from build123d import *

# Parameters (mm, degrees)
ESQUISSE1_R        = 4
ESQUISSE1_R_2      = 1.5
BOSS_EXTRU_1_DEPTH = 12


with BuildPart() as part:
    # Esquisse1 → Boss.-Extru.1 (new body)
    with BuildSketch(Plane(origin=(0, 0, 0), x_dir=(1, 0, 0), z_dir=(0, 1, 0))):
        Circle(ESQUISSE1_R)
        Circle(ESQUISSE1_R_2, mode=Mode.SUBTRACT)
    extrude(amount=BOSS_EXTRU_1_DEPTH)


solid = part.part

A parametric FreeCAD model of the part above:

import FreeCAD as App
import Part
import Sketcher

V = App.Vector
Q = App.Units.Quantity

doc = App.newDocument("Part")
body = doc.addObject("PartDesign::Body", "Body")

# Sketch on XZ plane
sketch1 = body.newObject("Sketcher::SketchObject", "Sketch")
sketch1.AttachmentSupport = (doc.getObject("XZ_Plane"), [""])
sketch1.MapMode = "FlatFace"
sketch1.addGeometry(Part.Circle(V(0, 0, 0), V(0, 0, 1), 4), False)
sketch1.addGeometry(Part.Circle(V(0, 0, 0), V(0, 0, 1), 1.5), False)
sketch1.addConstraint(Sketcher.Constraint("Coincident", 0, 3, -1, 1))
sketch1.addConstraint(Sketcher.Constraint("Coincident", 1, 3, -1, 1))
sketch1.addConstraint(Sketcher.Constraint("Diameter", 0, Q("8 mm")))
sketch1.addConstraint(Sketcher.Constraint("Diameter", 1, Q("3 mm")))
pad1 = body.newObject("PartDesign::Pad", "Pad")
pad1.Profile = sketch1
pad1.Length = 12
pad1.Reversed = True

doc.recompute()
